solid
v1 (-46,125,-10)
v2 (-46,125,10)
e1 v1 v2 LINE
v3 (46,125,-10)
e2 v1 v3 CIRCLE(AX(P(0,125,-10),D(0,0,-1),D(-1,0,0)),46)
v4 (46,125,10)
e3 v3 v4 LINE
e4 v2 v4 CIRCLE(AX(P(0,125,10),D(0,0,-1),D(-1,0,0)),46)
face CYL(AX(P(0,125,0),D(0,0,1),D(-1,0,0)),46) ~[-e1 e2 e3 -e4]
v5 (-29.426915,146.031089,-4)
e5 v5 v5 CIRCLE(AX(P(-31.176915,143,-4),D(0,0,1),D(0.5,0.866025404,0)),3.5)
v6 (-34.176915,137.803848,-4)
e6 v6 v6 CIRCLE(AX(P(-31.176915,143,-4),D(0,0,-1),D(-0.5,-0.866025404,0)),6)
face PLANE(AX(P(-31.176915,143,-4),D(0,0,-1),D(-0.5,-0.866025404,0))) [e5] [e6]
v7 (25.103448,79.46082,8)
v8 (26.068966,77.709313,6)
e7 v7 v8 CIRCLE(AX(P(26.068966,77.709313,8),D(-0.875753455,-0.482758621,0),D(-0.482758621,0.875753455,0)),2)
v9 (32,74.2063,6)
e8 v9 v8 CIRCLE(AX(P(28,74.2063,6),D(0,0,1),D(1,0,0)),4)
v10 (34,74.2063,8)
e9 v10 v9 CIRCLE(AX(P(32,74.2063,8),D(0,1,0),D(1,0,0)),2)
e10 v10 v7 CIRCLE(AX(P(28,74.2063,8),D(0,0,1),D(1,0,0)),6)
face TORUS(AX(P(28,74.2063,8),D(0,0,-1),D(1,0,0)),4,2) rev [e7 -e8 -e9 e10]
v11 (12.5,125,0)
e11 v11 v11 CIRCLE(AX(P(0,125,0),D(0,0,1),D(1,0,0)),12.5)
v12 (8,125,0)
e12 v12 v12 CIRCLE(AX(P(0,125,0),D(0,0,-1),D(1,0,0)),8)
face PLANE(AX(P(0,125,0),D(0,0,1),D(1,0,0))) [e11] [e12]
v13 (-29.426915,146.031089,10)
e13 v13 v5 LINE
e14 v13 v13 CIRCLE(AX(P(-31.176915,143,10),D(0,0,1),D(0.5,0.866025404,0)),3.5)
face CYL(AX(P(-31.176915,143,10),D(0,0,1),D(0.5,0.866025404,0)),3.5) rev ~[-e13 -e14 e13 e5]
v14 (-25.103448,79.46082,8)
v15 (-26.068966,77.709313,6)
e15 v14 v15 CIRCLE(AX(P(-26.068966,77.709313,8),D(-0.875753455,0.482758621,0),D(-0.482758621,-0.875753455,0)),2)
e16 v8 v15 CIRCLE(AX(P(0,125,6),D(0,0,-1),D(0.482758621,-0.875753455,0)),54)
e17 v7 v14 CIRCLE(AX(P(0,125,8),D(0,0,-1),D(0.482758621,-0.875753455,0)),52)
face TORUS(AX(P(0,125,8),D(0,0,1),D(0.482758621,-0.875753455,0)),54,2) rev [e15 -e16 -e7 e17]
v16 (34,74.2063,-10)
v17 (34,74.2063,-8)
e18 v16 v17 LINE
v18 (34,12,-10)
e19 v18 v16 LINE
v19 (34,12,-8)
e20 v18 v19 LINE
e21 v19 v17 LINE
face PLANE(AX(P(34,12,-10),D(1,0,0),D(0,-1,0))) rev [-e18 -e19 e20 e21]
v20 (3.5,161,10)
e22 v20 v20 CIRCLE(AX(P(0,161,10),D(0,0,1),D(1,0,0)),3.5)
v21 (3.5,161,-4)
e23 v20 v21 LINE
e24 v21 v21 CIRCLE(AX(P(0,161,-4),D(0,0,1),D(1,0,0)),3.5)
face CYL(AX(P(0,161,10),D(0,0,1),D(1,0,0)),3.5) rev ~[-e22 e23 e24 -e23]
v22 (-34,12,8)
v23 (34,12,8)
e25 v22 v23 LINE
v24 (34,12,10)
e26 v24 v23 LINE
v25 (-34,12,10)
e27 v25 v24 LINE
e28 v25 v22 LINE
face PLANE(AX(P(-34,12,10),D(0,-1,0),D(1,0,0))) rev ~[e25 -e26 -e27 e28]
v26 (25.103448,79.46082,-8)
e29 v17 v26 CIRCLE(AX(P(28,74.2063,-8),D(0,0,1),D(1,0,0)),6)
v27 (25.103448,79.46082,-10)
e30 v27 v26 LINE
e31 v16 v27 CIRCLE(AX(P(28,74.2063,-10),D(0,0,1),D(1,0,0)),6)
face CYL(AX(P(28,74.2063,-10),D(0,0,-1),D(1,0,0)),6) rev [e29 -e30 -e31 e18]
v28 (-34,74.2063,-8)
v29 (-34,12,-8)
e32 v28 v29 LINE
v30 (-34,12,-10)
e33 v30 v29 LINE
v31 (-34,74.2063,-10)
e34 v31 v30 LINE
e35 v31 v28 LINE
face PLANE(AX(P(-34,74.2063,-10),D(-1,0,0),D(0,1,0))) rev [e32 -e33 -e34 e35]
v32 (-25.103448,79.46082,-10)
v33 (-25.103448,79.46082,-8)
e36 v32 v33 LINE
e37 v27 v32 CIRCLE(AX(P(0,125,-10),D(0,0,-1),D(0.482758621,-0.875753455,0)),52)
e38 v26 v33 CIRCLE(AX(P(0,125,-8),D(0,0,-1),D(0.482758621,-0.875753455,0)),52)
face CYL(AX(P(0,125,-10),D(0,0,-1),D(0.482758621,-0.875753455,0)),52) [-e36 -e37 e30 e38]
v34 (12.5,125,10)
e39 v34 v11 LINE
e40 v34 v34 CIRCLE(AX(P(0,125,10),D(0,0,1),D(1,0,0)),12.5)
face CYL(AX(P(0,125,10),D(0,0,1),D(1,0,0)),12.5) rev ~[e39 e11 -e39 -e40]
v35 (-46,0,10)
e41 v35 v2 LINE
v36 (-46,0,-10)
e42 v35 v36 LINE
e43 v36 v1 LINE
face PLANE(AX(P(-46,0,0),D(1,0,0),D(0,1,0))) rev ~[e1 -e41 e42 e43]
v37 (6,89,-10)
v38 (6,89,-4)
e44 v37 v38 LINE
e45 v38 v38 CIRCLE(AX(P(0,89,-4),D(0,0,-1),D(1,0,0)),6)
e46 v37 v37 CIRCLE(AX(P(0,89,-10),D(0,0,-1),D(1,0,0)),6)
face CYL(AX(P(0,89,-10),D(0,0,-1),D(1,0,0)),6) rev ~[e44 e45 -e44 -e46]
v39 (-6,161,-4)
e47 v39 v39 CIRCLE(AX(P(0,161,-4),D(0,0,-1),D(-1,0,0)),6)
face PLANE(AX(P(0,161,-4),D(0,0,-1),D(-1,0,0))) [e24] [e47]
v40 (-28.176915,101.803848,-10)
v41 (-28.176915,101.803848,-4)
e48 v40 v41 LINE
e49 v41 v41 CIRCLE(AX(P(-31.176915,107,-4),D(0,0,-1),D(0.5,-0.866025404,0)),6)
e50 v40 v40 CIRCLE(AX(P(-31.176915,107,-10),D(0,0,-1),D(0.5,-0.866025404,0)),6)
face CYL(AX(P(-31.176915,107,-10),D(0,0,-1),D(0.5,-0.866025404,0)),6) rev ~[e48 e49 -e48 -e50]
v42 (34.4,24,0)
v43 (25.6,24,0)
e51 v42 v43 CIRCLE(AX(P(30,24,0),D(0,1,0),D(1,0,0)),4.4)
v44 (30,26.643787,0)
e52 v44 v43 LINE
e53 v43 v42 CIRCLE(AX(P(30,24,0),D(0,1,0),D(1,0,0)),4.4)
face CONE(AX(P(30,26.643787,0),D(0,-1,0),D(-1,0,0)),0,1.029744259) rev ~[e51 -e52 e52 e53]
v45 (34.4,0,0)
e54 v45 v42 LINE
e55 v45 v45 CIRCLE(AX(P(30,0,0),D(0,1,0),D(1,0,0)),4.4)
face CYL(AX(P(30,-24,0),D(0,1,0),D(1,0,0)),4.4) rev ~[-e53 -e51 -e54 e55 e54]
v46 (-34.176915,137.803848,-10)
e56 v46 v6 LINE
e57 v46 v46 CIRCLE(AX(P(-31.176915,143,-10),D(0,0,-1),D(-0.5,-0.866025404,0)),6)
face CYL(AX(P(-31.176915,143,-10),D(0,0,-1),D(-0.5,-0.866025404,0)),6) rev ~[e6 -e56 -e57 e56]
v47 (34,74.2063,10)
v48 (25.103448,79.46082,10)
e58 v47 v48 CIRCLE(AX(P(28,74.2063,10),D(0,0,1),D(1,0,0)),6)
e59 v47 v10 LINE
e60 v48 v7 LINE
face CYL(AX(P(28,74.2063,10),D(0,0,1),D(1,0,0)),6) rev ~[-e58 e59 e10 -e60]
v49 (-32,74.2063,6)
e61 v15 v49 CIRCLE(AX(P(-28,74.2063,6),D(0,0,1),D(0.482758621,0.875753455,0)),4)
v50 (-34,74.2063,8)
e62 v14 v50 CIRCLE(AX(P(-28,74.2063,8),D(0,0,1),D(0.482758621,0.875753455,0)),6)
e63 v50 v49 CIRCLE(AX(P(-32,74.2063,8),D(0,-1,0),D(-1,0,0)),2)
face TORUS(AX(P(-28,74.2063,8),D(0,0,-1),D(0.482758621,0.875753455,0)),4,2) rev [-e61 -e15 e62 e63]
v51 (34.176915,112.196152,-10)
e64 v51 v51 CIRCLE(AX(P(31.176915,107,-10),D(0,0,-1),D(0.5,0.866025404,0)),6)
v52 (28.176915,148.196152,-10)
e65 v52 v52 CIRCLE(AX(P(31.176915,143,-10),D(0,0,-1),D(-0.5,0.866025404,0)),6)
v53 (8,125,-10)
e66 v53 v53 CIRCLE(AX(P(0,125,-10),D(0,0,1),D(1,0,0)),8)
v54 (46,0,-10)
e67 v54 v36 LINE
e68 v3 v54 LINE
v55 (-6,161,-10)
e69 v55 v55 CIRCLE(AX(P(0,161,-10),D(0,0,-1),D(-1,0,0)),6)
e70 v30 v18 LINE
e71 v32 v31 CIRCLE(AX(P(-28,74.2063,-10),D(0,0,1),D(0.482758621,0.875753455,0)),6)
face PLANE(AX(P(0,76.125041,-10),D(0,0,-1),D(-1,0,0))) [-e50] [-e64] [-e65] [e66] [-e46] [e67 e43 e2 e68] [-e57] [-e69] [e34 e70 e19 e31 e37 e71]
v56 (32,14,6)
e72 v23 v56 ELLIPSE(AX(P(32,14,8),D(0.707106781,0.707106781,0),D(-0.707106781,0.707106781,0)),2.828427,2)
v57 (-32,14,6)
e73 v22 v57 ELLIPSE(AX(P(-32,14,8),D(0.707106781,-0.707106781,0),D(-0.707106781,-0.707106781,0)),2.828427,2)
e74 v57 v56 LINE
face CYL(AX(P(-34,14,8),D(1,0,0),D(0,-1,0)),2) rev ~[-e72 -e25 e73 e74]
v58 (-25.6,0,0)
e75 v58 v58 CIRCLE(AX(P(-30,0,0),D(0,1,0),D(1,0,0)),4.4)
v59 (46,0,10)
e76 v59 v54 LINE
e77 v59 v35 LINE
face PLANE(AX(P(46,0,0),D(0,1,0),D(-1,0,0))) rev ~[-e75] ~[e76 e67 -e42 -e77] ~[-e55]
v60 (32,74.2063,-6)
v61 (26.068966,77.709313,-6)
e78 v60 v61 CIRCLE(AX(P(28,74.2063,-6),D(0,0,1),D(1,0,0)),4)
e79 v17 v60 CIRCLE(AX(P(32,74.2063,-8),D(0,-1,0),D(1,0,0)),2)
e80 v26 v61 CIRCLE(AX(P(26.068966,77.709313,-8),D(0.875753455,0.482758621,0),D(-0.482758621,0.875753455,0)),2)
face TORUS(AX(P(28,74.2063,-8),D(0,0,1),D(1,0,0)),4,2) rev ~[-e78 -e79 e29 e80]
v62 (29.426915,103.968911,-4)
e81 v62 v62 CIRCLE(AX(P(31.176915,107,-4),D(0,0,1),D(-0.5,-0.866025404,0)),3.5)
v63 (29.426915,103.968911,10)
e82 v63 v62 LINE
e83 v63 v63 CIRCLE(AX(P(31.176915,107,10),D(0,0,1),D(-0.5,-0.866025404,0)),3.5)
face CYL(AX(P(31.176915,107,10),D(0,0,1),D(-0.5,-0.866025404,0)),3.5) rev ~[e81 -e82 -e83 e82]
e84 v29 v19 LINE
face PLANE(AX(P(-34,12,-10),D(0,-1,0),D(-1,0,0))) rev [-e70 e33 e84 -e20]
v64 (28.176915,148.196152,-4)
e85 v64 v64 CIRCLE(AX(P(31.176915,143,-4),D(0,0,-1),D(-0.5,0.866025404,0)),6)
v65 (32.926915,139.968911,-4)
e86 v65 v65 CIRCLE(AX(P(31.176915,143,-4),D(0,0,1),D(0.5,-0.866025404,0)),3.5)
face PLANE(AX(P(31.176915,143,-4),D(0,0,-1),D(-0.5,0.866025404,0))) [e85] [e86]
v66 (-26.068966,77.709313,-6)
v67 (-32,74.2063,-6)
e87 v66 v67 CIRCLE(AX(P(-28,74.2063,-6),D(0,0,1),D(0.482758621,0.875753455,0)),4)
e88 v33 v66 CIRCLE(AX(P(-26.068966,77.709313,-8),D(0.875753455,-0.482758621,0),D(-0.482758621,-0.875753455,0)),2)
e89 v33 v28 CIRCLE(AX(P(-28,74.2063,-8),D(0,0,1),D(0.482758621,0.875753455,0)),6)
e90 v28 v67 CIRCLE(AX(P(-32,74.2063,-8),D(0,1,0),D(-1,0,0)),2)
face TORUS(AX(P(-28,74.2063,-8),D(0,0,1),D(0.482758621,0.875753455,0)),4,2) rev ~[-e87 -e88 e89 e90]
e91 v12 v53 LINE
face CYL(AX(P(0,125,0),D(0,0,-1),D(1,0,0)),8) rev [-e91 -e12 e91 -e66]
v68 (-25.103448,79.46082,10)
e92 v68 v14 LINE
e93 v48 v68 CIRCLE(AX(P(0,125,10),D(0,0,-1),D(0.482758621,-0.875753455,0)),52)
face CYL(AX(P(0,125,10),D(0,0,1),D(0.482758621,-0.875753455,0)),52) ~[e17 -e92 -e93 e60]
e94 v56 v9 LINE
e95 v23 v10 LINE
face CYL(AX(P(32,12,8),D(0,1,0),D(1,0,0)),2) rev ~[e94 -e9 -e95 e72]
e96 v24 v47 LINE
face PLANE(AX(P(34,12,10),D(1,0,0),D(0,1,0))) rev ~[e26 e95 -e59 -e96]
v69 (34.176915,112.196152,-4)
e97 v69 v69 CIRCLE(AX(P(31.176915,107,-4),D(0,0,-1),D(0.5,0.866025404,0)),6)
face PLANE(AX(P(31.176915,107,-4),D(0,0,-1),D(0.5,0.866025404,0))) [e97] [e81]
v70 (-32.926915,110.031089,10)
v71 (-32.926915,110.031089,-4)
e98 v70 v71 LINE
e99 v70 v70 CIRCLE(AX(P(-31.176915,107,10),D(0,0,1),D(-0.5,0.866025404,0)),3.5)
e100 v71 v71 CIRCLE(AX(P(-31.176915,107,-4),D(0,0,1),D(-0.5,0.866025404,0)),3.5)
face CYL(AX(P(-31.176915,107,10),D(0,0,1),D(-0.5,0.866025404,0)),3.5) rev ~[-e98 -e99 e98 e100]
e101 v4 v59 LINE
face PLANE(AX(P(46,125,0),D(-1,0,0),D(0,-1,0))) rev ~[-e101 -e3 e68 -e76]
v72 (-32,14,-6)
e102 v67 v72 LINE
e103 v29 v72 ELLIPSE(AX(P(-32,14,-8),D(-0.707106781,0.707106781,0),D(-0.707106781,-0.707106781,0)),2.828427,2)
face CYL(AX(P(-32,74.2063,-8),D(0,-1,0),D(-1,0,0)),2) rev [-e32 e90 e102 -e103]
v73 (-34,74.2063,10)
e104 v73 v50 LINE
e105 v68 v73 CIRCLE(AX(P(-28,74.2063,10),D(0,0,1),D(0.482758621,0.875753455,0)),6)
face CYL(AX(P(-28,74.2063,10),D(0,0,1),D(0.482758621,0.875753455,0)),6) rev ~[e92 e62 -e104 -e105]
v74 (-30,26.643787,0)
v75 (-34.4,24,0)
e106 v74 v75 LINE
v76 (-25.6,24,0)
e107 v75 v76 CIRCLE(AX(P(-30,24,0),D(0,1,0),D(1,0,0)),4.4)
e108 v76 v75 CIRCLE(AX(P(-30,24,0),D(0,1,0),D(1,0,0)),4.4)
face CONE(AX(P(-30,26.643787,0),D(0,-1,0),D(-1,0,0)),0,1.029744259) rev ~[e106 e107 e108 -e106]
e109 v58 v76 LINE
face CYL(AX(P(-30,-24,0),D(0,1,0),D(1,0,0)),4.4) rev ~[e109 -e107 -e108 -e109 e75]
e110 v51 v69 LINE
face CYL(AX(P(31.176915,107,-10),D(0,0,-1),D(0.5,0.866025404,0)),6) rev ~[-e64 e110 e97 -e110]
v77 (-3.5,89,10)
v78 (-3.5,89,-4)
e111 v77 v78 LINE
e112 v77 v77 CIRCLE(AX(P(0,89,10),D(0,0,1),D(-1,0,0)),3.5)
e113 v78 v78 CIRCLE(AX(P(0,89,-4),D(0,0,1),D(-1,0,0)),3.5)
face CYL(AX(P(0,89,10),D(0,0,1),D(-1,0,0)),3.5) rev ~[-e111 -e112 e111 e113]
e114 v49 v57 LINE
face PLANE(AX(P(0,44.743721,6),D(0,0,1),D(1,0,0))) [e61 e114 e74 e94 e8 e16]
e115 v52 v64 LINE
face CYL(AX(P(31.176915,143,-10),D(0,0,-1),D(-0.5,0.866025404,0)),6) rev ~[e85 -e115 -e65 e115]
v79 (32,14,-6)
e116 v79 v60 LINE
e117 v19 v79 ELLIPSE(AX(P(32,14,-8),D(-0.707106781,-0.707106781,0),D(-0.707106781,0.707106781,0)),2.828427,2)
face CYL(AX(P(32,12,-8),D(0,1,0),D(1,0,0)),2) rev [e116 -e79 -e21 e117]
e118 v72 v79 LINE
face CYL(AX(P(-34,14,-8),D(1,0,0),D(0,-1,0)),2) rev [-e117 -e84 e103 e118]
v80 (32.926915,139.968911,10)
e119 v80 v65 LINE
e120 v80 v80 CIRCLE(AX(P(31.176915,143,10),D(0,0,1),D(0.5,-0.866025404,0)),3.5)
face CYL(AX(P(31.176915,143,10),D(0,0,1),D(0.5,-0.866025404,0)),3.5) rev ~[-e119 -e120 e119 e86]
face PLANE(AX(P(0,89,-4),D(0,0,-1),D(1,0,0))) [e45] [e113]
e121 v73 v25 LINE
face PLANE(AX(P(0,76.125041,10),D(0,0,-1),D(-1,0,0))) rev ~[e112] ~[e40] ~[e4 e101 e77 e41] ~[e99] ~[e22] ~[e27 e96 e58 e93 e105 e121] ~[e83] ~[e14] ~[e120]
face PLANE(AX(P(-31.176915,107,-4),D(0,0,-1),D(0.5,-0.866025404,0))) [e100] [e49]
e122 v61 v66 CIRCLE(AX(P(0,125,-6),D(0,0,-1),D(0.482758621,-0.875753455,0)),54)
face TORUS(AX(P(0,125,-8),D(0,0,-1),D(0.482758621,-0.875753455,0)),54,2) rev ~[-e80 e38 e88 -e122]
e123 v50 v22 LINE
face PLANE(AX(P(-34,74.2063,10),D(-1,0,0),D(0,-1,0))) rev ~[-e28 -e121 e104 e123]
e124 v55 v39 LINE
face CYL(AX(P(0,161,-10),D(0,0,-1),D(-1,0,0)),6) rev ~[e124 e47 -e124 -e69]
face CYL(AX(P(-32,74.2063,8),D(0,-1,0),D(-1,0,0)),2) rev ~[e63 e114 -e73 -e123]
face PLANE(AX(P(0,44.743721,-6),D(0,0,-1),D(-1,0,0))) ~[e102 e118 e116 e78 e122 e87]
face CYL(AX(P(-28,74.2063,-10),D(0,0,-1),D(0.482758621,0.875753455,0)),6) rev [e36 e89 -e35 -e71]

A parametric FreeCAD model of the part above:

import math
import FreeCAD as App
import Part
import Sketcher
from FreeCAD import Vector
Q = App.Units.Quantity


def edges_at(feature, points):
    """Names of the edges that pass closest to the given points."""
    edges = feature.Shape.Edges
    near = lambda p: min(range(len(edges)), key=lambda i: edges[i].distToShape(Part.Vertex(*p))[0])
    return sorted({f"Edge{near(p) + 1}" for p in points})

doc = App.newDocument("Part")
body = doc.addObject("PartDesign::Body", "Body")

sketch1 = body.newObject("Sketcher::SketchObject", "Sketch")
sketch1.AttachmentSupport = (doc.getObject("XY_Plane"), [""])
sketch1.MapMode = "FlatFace"
sketch1.addGeometry(Part.LineSegment(Vector(46, 0, 0), Vector(46, 125, 0)), False)
sketch1.addGeometry(Part.ArcOfCircle(Part.Circle(Vector(0, 125, 0), Vector(0, 0, 1), 46), math.radians(0), math.radians(180)), False)
sketch1.addGeometry(Part.LineSegment(Vector(-46, 125, 0), Vector(-46, 0, 0)), False)
sketch1.addGeometry(Part.LineSegment(Vector(-46, 0, 0), Vector(46, 0, 0)), False)
sketch1.addGeometry(Part.Circle(Vector(0, 125, 0), Vector(0, 0, 1), 8), False)
sketch1.addConstraint(Sketcher.Constraint("Tangent", 0, 2, 1, 1))
sketch1.addConstraint(Sketcher.Constraint("Tangent", 1, 2, 2, 1))
sketch1.addConstraint(Sketcher.Constraint("Coincident", 2, 2, 3, 1))
sketch1.addConstraint(Sketcher.Constraint("Coincident", 3, 2, 0, 1))
sketch1.addConstraint(Sketcher.Constraint("Vertical", 0))
sketch1.addConstraint(Sketcher.Constraint("Vertical", 2))
sketch1.addConstraint(Sketcher.Constraint("Horizontal", 3))
sketch1.addConstraint(Sketcher.Constraint("Coincident", 4, 3, 1, 3))
sketch1.addConstraint(Sketcher.Constraint("Symmetric", 2, 2, 3, 2, -1, 1))
sketch1.addConstraint(Sketcher.Constraint("Diameter", 4, Q("16 mm")))
sketch1.addConstraint(Sketcher.Constraint("Radius", 1, Q("46 mm")))
sketch1.addConstraint(Sketcher.Constraint("DistanceY", 0, 1, 0, 2, Q("125 mm")))
pad1 = body.newObject("PartDesign::Pad", "Pad")
pad1.Profile = sketch1
pad1.Length = 20
pad1.Midplane = True

sketch2 = body.newObject("Sketcher::SketchObject", "Sketch001")
sketch2.AttachmentSupport = (doc.getObject("XY_Plane"), [""])
sketch2.MapMode = "FlatFace"
sketch2.AttachmentOffset = App.Placement(Vector(0, 0, 10), App.Rotation())
sketch2.addGeometry(Part.Circle(Vector(0, 125, 0), Vector(0, 0, 1), 12), False)
sketch2.addConstraint(Sketcher.Constraint("PointOnObject", 0, 3, -2))
sketch2.addConstraint(Sketcher.Constraint("Diameter", 0, Q("25 mm")))
sketch2.addConstraint(Sketcher.Constraint("DistanceY", -1, 1, 0, 3, Q("125 mm")))
pocket1 = body.newObject("PartDesign::Pocket", "Pocket")
pocket1.Profile = sketch2
pocket1.Length = 10

sketch3 = body.newObject("Sketcher::SketchObject", "Sketch002")
sketch3.AttachmentSupport = (doc.getObject("XY_Plane"), [""])
sketch3.MapMode = "FlatFace"
sketch3.AttachmentOffset = App.Placement(Vector(0, 0, 10), App.Rotation())
sketch3.addGeometry(Part.Circle(Vector(0, 161, 0), Vector(0, 0, 1), 3.5), False)
sketch3.addConstraint(Sketcher.Constraint("PointOnObject", 0, 3, -2))
sketch3.addConstraint(Sketcher.Constraint("Diameter", 0, Q("7 mm")))
sketch3.addConstraint(Sketcher.Constraint("DistanceY", -1, 1, 0, 3, Q("161 mm")))
pocket2 = body.newObject("PartDesign::Pocket", "Pocket001")
pocket2.Profile = sketch3
pocket2.Type = "ThroughAll"

sketch4 = body.newObject("Sketcher::SketchObject", "Sketch003")
sketch4.AttachmentSupport = (doc.getObject("XY_Plane"), [""])
sketch4.MapMode = "FlatFace"
sketch4.AttachmentOffset = App.Placement(Vector(0, 0, -10), App.Rotation())
sketch4.addGeometry(Part.Circle(Vector(0, 161, 0), Vector(0, 0, 1), 6), False)
sketch4.addConstraint(Sketcher.Constraint("PointOnObject", 0, 3, -2))
sketch4.addConstraint(Sketcher.Constraint("Diameter", 0, Q("12 mm")))
sketch4.addConstraint(Sketcher.Constraint("DistanceY", -1, 1, 0, 3, Q("161 mm")))
pocket3 = body.newObject("PartDesign::Pocket", "Pocket002")
pocket3.Profile = sketch4
pocket3.Length = 6
pocket3.Reversed = True
doc.recompute()

datumline = body.newObject("PartDesign::Line", "DatumLine")
datumline.Placement = App.Placement(Vector(0, 125, 0), App.Rotation(Vector(0, 0, 1), Vector(0, 0, 1)))
polarpattern = body.newObject("PartDesign::PolarPattern", "PolarPattern")
polarpattern.Originals = [pocket2, pocket3]
polarpattern.Axis = (datumline, [""])
polarpattern.Angle = 360
polarpattern.Occurrences = 6
body.Tip = polarpattern

sketch5 = body.newObject("Sketcher::SketchObject", "Sketch004")
sketch5.AttachmentSupport = (doc.getObject("XZ_Plane"), [""])
sketch5.MapMode = "FlatFace"
sketch5.addGeometry(Part.Circle(Vector(-30, 0, 0), Vector(0, 0, 1), 4.4), False)
sketch5.addGeometry(Part.Circle(Vector(30, 0, 0), Vector(0, 0, 1), 4.4), False)
sketch5.addConstraint(Sketcher.Constraint("Equal", 0, 1))
sketch5.addConstraint(Sketcher.Constraint("Symmetric", 0, 3, 1, 3, -1, 1))
sketch5.addConstraint(Sketcher.Constraint("PointOnObject", 0, 3, -1))
sketch5.addConstraint(Sketcher.Constraint("Diameter", 0, Q("8.8 mm")))
sketch5.addConstraint(Sketcher.Constraint("DistanceX", 0, 3, -1, 1, Q("30 mm")))
doc.recompute()
hole = body.newObject("PartDesign::Hole", "Hole")
hole.Profile = sketch5
hole.ThreadType = "None"
hole.Diameter = 8.8
hole.DepthType = "Dimension"
hole.Depth = 24
hole.DrillPoint = "Angled"
hole.DrillPointAngle = 118

sketch6 = body.newObject("Sketcher::SketchObject", "Sketch005")
sketch6.AttachmentSupport = (doc.getObject("XY_Plane"), [""])
sketch6.MapMode = "FlatFace"
sketch6.AttachmentOffset = App.Placement(Vector(0, 0, 10), App.Rotation())
sketch6.addGeometry(Part.LineSegment(Vector(-34, 74, 0), Vector(-34, 12, 0)), False)
sketch6.addGeometry(Part.LineSegment(Vector(-34, 12, 0), Vector(34, 12, 0)), False)
sketch6.addGeometry(Part.LineSegment(Vector(34, 12, 0), Vector(34, 74, 0)), False)
sketch6.addGeometry(Part.ArcOfCircle(Part.Circle(Vector(28, 74, 0), Vector(0, 0, 1), 6), math.radians(0), math.radians(119)), False)
sketch6.addGeometry(Part.ArcOfCircle(Part.Circle(Vector(0, 125, 0), Vector(0, 0, 1), 52), math.radians(-119), math.radians(-61)), False)
sketch6.addGeometry(Part.ArcOfCircle(Part.Circle(Vector(-28, 74, 0), Vector(0, 0, 1), 6), math.radians(61), math.radians(180)), False)
sketch6.addConstraint(Sketcher.Constraint("Coincident", 0, 2, 1, 1))
sketch6.addConstraint(Sketcher.Constraint("Coincident", 1, 2, 2, 1))
sketch6.addConstraint(Sketcher.Constraint("Tangent", 2, 2, 3, 1))
sketch6.addConstraint(Sketcher.Constraint("Tangent", 3, 2, 4, 2))
sketch6.addConstraint(Sketcher.Constraint("Tangent", 4, 1, 5, 1))
sketch6.addConstraint(Sketcher.Constraint("Tangent", 5, 2, 0, 1))
sketch6.addConstraint(Sketcher.Constraint("Vertical", 0))
sketch6.addConstraint(Sketcher.Constraint("Horizontal", 1))
sketch6.addConstraint(Sketcher.Constraint("Vertical", 2))
sketch6.addConstraint(Sketcher.Constraint("Equal", 3, 5))
sketch6.addConstraint(Sketcher.Constraint("Symmetric", 3, 3, 5, 3, -2))
sketch6.addConstraint(Sketcher.Constraint("Radius", 3, Q("6 mm")))
sketch6.addConstraint(Sketcher.Constraint("Radius", 4, Q("52 mm")))
sketch6.addConstraint(Sketcher.Constraint("DistanceX", 1, 1, 1, 2, Q("68 mm")))
sketch6.addConstraint(Sketcher.Constraint("DistanceY", -1, 1, 4, 3, Q("125 mm")))
sketch6.addConstraint(Sketcher.Constraint("DistanceY", -1, 1, 0, 2, Q("12 mm")))
pocket4 = body.newObject("PartDesign::Pocket", "Pocket003")
pocket4.Profile = sketch6
pocket4.Length = 4
doc.recompute()

fillet = body.newObject("PartDesign::Fillet", "Fillet")
fillet.Base = (pocket4, edges_at(pocket4, [
    (31.051, 79.373, 6),
    (34, 43.103, 6),
    (0, 12, 6),
    (-34, 43.103, 6),
    (-31.051, 79.373, 6),
    (0, 73, 6),
]))
fillet.Radius = 2
doc.recompute()

mirrored = body.newObject("PartDesign::Mirrored", "Mirrored")
mirrored.Originals = [pocket4]
mirrored.MirrorPlane = (doc.getObject("XY_Plane"), [""])
body.Tip = mirrored
doc.recompute()

fillet2 = body.newObject("PartDesign::Fillet", "Fillet001")
fillet2.Base = (mirrored, edges_at(mirrored, [
    (31.051, 79.373, -6),
    (34, 43.103, -6),
    (0, 12, -6),
    (-34, 43.103, -6),
    (-31.051, 79.373, -6),
    (0, 73, -6),
]))
fillet2.Radius = 2

doc.recompute()
